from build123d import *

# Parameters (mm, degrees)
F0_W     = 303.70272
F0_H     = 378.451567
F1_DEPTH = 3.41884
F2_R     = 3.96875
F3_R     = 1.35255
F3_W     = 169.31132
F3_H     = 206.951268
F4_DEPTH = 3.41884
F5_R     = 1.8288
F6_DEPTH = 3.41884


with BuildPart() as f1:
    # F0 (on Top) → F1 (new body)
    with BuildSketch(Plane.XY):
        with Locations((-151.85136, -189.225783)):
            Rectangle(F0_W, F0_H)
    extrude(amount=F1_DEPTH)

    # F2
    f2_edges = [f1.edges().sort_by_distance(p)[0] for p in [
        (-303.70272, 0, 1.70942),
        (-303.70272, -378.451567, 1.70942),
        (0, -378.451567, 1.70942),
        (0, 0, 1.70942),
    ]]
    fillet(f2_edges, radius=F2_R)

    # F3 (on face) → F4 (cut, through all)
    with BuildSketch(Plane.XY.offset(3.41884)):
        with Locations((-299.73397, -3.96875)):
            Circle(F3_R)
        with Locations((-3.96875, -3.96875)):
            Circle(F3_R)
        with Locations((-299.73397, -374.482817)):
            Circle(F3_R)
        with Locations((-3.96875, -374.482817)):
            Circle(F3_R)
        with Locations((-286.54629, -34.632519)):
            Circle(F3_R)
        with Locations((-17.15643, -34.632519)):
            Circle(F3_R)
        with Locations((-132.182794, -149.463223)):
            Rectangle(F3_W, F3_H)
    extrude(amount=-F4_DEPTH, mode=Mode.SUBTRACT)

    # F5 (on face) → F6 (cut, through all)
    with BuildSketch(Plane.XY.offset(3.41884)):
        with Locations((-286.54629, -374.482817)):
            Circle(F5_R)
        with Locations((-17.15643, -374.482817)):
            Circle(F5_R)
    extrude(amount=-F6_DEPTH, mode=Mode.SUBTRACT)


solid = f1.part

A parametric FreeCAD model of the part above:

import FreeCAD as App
import Part
import Sketcher
Q = App.Units.Quantity


def edges_at(feature, points):
    """Names of the edges that pass closest to the given points."""
    edges = feature.Shape.Edges
    near = lambda p: min(range(len(edges)), key=lambda i: edges[i].distToShape(Part.Vertex(*p))[0])
    return sorted({f"Edge{near(p) + 1}" for p in points})

doc = App.newDocument("Part")
params = doc.addObject("Spreadsheet::Sheet", "Params")
for row, (alias, value) in enumerate([
    ("pad1_length", "0.1346 in"),
    ("fillet_radius", "0.15625 in"),
    ("sketch3_diameter", "0.144 in"),
], start=1):
    params.set(f"A{row}", alias)
    params.set(f"B{row}", "=" + value)
    params.setAlias(f"B{row}", alias)

body = doc.addObject("PartDesign::Body", "Body")

sketch1 = doc.addObject("Sketcher::SketchObject", "Sketch")
body.addObject(sketch1)
sketch1.AttachmentSupport = (doc.XY_Plane, [""])
sketch1.MapMode = "FlatFace"
sketch1.addGeometry([
    Part.LineSegment(App.Vector(-304, 0, 0), App.Vector(-304, -378, 0)),
    Part.LineSegment(App.Vector(-304, -378, 0), App.Vector(0, -378, 0)),
    Part.LineSegment(App.Vector(0, -378, 0), App.Vector(0, 0, 0)),
    Part.LineSegment(App.Vector(0, 0, 0), App.Vector(-304, 0, 0)),
], False)
sketch1.addConstraint([
    Sketcher.Constraint("Coincident", 0, 2, 1, 1),
    Sketcher.Constraint("Coincident", 1, 2, 2, 1),
    Sketcher.Constraint("Coincident", 2, 2, 3, 1),
    Sketcher.Constraint("Coincident", 3, 2, 0, 1),
    Sketcher.Constraint("Vertical", 0),
    Sketcher.Constraint("Horizontal", 1),
    Sketcher.Constraint("Vertical", 2),
    Sketcher.Constraint("Horizontal", 3),
    Sketcher.Constraint("Coincident", 2, 2, -1, 1),
    Sketcher.Constraint("DistanceX", 1, 1, 1, 2, Q("11.9568 in")),
    Sketcher.Constraint("DistanceY", 0, 2, 0, 1, 378.451567),
])
pad1 = doc.addObject("PartDesign::Pad", "Pad")
body.addObject(pad1)
pad1.Profile = sketch1
pad1.setExpression("Length", "Params.pad1_length")
doc.recompute()

fillet = doc.addObject("PartDesign::Fillet", "Fillet")
body.addObject(fillet)
fillet.Base = (pad1, edges_at(pad1, [
    (-303.703, 0, 1.709),
    (-303.703, -378.452, 1.709),
    (0, -378.452, 1.709),
    (0, 0, 1.709),
]))
fillet.setExpression("Radius", "Params.fillet_radius")

sketch2 = doc.addObject("Sketcher::SketchObject", "Sketch001")
body.addObject(sketch2)
sketch2.AttachmentSupport = (doc.XY_Plane, [""])
sketch2.MapMode = "FlatFace"
sketch2.AttachmentOffset = App.Placement(App.Vector(0, 0, 0.1346 * 25.4), App.Rotation())
sketch2.addGeometry([
    Part.Circle(App.Vector(-299.7, -4, 0), App.Vector(0, 0, 1), 1.4),
    Part.Circle(App.Vector(-4, -4, 0), App.Vector(0, 0, 1), 1.4),
    Part.Circle(App.Vector(-299.7, -374.5, 0), App.Vector(0, 0, 1), 1.4),
    Part.Circle(App.Vector(-4, -374.5, 0), App.Vector(0, 0, 1), 1.4),
    Part.Circle(App.Vector(-286.5, -34.6, 0), App.Vector(0, 0, 1), 1.4),
    Part.Circle(App.Vector(-17.2, -34.6, 0), App.Vector(0, 0, 1), 1.4),
    Part.LineSegment(App.Vector(-216.8, -46, 0), App.Vector(-216.8, -252.9, 0)),
    Part.LineSegment(App.Vector(-216.8, -252.9, 0), App.Vector(-47.5, -252.9, 0)),
    Part.LineSegment(App.Vector(-47.5, -252.9, 0), App.Vector(-47.5, -46, 0)),
    Part.LineSegment(App.Vector(-47.5, -46, 0), App.Vector(-216.8, -46, 0)),
], False)
sketch2.addConstraint([
    Sketcher.Constraint("Coincident", 6, 2, 7, 1),
    Sketcher.Constraint("Coincident", 7, 2, 8, 1),
    Sketcher.Constraint("Coincident", 8, 2, 9, 1),
    Sketcher.Constraint("Coincident", 9, 2, 6, 1),
    Sketcher.Constraint("Vertical", 6),
    Sketcher.Constraint("Horizontal", 7),
    Sketcher.Constraint("Vertical", 8),
    Sketcher.Constraint("Horizontal", 9),
    Sketcher.Constraint("Equal", 0, 1),
    Sketcher.Constraint("Equal", 1, 2),
    Sketcher.Constraint("Equal", 2, 3),
    Sketcher.Constraint("Equal", 3, 4),
    Sketcher.Constraint("Equal", 4, 5),
    Sketcher.Constraint("Horizontal", 0, 3, 1, 3),
    Sketcher.Constraint("Horizontal", 2, 3, 3, 3),
    Sketcher.Constraint("Horizontal", 4, 3, 5, 3),
    Sketcher.Constraint("Vertical", 0, 3, 2, 3),
    Sketcher.Constraint("Vertical", 1, 3, 3, 3),
    Sketcher.Constraint("Diameter", 0, Q("0.1065 in")),
    Sketcher.Constraint("DistanceX", 7, 1, 7, 2, Q("6.6658 in")),
    Sketcher.Constraint("DistanceY", 0, 3, -1, 1, Q("0.15625 in")),
    Sketcher.Constraint("DistanceX", 1, 3, -1, 1, Q("0.15625 in")),
    Sketcher.Constraint("DistanceX", 0, 3, 1, 3, Q("11.6443 in")),
    Sketcher.Constraint("DistanceX", 0, 3, 4, 3, Q("0.5192 in")),
    Sketcher.Constraint("DistanceX", 5, 3, 1, 3, Q("0.5192 in")),
    Sketcher.Constraint("DistanceY", 6, 2, 6, 1, 206.951268),
    Sketcher.Constraint("DistanceY", 2, 3, 4, 3, 339.850298),
    Sketcher.Constraint("DistanceY", 4, 3, -1, 1, 34.632519),
    Sketcher.Constraint("DistanceY", 8, 2, -1, 1, 45.987589),
    Sketcher.Constraint("DistanceX", 6, 2, -1, 1, 216.838454),
])
pocket1 = doc.addObject("PartDesign::Pocket", "Pocket")
body.addObject(pocket1)
pocket1.Profile = sketch2
pocket1.Type = "ThroughAll"

sketch3 = doc.addObject("Sketcher::SketchObject", "Sketch002")
body.addObject(sketch3)
sketch3.AttachmentSupport = (doc.XY_Plane, [""])
sketch3.MapMode = "FlatFace"
sketch3.AttachmentOffset = App.Placement(App.Vector(0, 0, 0.1346 * 25.4), App.Rotation())
sketch3.addGeometry([
    Part.Circle(App.Vector(-286.5, -374.5, 0), App.Vector(0, 0, 1), 1.8),
    Part.Circle(App.Vector(-17.2, -374.5, 0), App.Vector(0, 0, 1), 1.8),
], False)
sketch3.addConstraint([
    Sketcher.Constraint("Equal", 0, 1),
    Sketcher.Constraint("Horizontal", 0, 3, 1, 3),
    Sketcher.Constraint("Diameter", 0, Q("0.144 in")),
    Sketcher.Constraint("DistanceX", 0, 3, 1, 3, Q("10.6059 in")),
    Sketcher.Constraint("DistanceX", 0, 3, -1, 1, 286.54629),
    Sketcher.Constraint("DistanceY", 0, 3, -1, 1, 374.482817),
])
sketch3.setExpression("Constraints[2]", "Params.sketch3_diameter")
pocket2 = doc.addObject("PartDesign::Pocket", "Pocket001")
body.addObject(pocket2)
pocket2.Profile = sketch3
pocket2.Type = "ThroughAll"

doc.recompute()
